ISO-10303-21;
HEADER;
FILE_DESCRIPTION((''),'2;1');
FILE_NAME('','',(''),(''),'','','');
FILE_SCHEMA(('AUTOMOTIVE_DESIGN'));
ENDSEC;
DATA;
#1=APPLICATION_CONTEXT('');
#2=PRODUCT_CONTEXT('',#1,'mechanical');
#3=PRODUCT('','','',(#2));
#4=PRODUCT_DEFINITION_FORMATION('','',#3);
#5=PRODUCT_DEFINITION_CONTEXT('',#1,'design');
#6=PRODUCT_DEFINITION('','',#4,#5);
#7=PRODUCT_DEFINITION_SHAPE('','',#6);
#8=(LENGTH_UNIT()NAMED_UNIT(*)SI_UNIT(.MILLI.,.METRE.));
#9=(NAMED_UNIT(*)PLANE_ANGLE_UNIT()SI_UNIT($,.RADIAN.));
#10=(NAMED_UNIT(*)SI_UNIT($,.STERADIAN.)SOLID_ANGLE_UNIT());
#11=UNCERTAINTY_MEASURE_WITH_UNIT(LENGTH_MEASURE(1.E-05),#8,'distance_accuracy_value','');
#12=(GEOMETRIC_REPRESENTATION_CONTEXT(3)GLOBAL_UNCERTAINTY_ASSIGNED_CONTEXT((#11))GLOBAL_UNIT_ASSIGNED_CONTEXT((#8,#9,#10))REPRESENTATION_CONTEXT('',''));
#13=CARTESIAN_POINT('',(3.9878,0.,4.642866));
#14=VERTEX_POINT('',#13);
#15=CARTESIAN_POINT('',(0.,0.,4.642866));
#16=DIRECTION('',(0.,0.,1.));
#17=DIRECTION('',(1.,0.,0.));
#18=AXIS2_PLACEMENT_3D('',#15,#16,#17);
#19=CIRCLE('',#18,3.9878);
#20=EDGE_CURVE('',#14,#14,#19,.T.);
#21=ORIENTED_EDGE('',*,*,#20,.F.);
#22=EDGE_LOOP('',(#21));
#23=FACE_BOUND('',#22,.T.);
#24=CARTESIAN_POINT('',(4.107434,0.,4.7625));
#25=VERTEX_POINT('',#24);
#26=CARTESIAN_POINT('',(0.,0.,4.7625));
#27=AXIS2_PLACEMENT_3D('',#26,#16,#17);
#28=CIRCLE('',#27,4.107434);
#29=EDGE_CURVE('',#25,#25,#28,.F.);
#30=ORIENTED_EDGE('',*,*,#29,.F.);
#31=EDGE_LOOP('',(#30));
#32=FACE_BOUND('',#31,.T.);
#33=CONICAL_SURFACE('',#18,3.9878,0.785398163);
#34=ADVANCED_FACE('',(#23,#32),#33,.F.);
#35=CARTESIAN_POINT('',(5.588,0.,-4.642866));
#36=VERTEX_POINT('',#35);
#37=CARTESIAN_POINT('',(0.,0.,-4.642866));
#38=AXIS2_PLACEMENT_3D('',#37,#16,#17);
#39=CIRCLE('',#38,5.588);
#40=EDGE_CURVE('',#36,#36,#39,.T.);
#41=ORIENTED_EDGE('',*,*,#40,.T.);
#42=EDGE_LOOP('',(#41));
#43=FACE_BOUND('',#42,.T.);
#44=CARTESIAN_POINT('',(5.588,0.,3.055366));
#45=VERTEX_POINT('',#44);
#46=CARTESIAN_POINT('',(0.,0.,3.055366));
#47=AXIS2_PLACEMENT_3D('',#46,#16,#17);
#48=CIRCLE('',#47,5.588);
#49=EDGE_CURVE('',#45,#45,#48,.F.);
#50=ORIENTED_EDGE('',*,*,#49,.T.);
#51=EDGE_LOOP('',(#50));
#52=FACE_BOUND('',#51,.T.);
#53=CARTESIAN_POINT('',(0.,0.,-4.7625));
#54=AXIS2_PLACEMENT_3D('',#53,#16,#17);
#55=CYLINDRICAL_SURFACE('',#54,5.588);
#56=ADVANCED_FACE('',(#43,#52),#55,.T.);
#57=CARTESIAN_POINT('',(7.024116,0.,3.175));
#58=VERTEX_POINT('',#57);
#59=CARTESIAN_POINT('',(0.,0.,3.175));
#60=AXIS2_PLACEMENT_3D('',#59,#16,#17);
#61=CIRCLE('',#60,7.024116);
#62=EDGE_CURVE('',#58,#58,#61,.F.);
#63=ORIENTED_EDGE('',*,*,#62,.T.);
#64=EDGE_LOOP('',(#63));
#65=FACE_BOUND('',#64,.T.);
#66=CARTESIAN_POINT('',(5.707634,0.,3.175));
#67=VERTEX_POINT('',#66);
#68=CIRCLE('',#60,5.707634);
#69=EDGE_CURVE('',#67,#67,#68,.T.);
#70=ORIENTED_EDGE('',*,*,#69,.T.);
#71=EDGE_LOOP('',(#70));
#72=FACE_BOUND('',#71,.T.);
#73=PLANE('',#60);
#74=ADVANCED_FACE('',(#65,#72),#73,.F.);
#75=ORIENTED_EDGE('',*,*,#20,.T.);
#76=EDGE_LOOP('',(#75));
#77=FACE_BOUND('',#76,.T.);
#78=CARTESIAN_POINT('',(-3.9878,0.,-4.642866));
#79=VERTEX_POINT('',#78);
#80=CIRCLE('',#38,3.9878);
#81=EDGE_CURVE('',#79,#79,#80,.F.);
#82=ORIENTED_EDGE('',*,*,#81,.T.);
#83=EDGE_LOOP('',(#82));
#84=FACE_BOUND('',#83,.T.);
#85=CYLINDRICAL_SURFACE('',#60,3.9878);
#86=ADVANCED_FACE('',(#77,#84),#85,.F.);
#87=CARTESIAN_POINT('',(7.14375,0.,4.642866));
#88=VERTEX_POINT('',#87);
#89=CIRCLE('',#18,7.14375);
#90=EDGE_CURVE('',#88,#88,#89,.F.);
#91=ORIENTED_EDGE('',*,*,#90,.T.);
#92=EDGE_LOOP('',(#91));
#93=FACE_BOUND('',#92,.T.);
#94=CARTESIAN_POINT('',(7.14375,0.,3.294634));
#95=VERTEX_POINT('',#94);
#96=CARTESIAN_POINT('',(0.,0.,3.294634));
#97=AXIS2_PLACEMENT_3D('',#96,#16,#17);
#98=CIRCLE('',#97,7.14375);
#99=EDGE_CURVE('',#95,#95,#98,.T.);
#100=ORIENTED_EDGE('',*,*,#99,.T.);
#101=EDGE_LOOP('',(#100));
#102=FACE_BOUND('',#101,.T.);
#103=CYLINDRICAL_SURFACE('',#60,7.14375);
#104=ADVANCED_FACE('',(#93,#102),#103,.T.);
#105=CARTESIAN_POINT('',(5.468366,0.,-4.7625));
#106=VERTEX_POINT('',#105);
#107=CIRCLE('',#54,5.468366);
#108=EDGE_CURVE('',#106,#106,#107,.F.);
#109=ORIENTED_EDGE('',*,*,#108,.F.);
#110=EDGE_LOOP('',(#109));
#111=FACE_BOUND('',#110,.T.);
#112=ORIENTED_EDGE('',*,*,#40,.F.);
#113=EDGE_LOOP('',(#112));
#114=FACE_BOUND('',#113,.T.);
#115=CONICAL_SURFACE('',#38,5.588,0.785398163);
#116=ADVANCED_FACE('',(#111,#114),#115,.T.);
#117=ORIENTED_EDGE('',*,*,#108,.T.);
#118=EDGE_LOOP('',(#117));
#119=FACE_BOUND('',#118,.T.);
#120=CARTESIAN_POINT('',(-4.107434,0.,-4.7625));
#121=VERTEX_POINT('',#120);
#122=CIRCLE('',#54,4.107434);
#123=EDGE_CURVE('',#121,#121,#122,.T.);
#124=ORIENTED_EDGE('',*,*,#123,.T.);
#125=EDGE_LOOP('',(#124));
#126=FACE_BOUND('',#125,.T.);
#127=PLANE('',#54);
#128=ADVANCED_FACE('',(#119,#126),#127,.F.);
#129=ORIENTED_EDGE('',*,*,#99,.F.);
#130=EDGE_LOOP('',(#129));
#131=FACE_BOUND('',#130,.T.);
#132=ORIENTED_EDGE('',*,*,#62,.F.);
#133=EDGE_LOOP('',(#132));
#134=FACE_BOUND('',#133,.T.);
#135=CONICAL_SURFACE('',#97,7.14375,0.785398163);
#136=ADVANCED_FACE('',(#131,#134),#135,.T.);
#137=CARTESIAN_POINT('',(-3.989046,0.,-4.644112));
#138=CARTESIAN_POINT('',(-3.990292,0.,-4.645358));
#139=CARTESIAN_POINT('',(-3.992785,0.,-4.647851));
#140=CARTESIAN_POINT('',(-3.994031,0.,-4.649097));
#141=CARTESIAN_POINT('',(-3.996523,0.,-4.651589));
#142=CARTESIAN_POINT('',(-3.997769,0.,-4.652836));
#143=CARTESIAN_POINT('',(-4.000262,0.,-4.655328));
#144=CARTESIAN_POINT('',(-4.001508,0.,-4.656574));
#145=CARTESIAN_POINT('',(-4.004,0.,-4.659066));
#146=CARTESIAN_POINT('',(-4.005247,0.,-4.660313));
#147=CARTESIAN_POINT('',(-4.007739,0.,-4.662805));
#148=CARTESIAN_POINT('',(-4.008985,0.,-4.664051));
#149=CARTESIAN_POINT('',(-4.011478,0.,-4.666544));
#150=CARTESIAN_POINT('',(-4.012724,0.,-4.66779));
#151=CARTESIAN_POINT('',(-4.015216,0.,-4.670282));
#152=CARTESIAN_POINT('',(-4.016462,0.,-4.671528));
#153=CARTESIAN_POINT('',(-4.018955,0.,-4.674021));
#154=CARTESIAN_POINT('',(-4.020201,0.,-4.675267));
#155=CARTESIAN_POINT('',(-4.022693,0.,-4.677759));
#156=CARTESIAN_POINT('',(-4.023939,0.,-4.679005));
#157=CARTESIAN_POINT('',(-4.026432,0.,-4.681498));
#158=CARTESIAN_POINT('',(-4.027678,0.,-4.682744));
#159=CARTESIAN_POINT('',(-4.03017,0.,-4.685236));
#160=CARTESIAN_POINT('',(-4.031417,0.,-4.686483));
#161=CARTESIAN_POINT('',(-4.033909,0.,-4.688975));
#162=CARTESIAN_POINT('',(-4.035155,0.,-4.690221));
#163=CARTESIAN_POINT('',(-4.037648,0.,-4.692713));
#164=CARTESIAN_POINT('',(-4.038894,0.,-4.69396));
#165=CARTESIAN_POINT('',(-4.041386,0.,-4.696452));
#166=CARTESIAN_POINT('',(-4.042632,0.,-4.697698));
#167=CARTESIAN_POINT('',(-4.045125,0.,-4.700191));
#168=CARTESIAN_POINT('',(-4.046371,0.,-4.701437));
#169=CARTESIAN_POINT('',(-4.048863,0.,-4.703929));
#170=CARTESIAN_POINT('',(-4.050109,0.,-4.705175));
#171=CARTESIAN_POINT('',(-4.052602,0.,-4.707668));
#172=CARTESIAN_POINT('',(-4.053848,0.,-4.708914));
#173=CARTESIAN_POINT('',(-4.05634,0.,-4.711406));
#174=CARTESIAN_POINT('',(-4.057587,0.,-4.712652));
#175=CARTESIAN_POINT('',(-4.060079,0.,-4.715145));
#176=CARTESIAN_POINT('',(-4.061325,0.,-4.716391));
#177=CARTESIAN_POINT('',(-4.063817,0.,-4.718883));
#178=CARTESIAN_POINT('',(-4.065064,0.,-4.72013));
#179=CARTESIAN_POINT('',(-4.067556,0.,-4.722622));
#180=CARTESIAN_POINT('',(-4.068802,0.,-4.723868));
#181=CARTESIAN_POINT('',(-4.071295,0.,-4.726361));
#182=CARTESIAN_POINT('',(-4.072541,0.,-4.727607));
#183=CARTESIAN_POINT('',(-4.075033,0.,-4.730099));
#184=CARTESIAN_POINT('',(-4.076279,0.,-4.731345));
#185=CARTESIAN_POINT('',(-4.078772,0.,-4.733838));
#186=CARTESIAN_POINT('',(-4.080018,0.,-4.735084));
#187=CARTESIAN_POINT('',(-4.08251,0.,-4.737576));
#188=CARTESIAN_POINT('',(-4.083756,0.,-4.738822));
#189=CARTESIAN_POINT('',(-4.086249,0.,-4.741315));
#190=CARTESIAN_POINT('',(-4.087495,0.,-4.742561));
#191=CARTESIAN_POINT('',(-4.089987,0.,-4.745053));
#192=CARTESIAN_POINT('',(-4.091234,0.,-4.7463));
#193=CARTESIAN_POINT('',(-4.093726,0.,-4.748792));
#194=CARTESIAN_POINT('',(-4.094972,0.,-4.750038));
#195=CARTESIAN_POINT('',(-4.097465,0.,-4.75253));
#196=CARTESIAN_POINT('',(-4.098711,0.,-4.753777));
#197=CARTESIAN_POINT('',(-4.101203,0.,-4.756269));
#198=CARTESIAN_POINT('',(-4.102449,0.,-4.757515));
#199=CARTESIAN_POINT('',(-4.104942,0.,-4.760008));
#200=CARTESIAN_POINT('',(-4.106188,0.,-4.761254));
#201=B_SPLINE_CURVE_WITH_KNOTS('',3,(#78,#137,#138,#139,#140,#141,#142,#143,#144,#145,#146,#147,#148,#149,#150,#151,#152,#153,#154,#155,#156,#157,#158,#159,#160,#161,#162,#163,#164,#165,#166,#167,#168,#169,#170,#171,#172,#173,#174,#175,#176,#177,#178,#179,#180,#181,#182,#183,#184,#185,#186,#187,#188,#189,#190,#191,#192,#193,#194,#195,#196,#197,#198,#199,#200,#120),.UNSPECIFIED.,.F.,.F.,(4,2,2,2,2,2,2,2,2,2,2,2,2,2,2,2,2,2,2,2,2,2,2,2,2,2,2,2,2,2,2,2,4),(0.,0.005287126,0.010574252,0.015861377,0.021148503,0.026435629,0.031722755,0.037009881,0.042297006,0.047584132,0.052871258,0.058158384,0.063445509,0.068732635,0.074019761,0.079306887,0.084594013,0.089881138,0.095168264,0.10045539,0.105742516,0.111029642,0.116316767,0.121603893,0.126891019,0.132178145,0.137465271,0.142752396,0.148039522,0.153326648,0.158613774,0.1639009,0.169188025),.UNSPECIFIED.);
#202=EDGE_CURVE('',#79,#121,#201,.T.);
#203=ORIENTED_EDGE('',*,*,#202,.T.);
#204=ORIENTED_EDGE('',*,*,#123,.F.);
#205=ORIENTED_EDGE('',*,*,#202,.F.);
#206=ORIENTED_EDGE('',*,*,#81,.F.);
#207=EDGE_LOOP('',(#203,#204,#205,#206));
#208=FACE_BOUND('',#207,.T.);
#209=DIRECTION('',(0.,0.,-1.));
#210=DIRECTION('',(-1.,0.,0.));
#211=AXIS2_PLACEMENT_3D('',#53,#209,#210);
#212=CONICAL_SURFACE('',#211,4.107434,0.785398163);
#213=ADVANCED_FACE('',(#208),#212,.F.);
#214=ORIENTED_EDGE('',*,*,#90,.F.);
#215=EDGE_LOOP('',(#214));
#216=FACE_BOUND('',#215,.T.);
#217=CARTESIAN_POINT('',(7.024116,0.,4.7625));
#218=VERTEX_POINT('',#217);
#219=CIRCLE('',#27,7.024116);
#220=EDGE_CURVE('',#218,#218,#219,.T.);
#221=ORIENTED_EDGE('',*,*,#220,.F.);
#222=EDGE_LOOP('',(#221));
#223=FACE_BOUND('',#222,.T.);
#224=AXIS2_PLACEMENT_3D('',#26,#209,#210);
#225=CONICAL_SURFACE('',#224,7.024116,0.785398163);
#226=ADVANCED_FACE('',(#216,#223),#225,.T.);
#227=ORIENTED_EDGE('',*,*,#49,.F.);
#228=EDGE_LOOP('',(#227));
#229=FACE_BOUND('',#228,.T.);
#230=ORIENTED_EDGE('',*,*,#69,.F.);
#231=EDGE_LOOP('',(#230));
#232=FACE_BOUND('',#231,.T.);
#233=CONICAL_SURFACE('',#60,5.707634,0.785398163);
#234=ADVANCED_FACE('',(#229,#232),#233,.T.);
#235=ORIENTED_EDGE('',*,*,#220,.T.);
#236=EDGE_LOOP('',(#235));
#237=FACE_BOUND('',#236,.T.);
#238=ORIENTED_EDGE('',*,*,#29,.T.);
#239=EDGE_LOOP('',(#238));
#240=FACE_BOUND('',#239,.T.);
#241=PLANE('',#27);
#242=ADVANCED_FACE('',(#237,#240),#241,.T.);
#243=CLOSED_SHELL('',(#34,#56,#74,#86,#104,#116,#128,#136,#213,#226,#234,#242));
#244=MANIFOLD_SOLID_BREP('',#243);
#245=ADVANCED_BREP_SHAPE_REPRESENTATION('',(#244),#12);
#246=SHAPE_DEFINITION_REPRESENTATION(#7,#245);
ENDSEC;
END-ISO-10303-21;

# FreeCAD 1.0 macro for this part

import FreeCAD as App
import Part
import Sketcher
from FreeCAD import Vector
Q = App.Units.Quantity


def edges_at(feature, points):
    """Names of the edges that pass closest to the given points."""
    edges = feature.Shape.Edges
    near = lambda p: min(range(len(edges)), key=lambda i: edges[i].distToShape(Part.Vertex(*p))[0])
    return sorted({f"Edge{near(p) + 1}" for p in points})

doc = App.newDocument("Part")
body = doc.addObject("PartDesign::Body", "Body")

# Sketch on XY plane
sketch1 = body.newObject("Sketcher::SketchObject", "Sketch")
sketch1.AttachmentSupport = (doc.getObject("XY_Plane"), [""])
sketch1.MapMode = "FlatFace"
sketch1.AttachmentOffset = App.Placement(Vector(0, 0, 0.1875 * 25.4), App.Rotation())
sketch1.addGeometry(Part.Circle(Vector(0, 0, 0), Vector(0, 0, 1), 7.1), False)
sketch1.addGeometry(Part.Circle(Vector(0, 0, 0), Vector(0, 0, 1), 4), False)
sketch1.addConstraint(Sketcher.Constraint("Coincident", 0, 3, -1, 1))
sketch1.addConstraint(Sketcher.Constraint("Coincident", 1, 3, -1, 1))
sketch1.addConstraint(Sketcher.Constraint("Diameter", 0, Q("0.5625 in")))
sketch1.addConstraint(Sketcher.Constraint("Diameter", 1, Q("0.314 in")))
pad1 = body.newObject("PartDesign::Pad", "Pad")
pad1.Profile = sketch1
pad1.Length = Q("0.0625 in")
pad1.Reversed = True

# Sketch on XY plane
sketch2 = body.newObject("Sketcher::SketchObject", "Sketch001")
sketch2.AttachmentSupport = (doc.getObject("XY_Plane"), [""])
sketch2.MapMode = "FlatFace"
sketch2.AttachmentOffset = App.Placement(Vector(0, 0, 0.125 * 25.4), App.Rotation())
sketch2.addGeometry(Part.Circle(Vector(0, 0, 0), Vector(0, 0, 1), 5.6), False)
sketch2.addGeometry(Part.Circle(Vector(0, 0, 0), Vector(0, 0, 1), 4), False)
sketch2.addConstraint(Sketcher.Constraint("Coincident", 0, 3, -1, 1))
sketch2.addConstraint(Sketcher.Constraint("Coincident", 1, 3, -1, 1))
sketch2.addConstraint(Sketcher.Constraint("Diameter", 0, Q("0.44 in")))
sketch2.addConstraint(Sketcher.Constraint("Diameter", 1, Q("0.314 in")))
pad2 = body.newObject("PartDesign::Pad", "Pad001")
pad2.Profile = sketch2
pad2.Length = Q("0.3125 in")
pad2.Reversed = True
doc.recompute()

chamfer = body.newObject("PartDesign::Chamfer", "Chamfer")
chamfer.Base = (pad2, edges_at(pad2, [
    (-3.988, 0, -4.763),
    (-5.588, 0, 3.175),
    (-7.144, 0, 4.763),
    (-7.144, 0, 3.175),
    (-3.988, 0, 4.763),
    (-5.588, 0, -4.763),
]))
chamfer.Size = 0.119634

doc.recompute()
